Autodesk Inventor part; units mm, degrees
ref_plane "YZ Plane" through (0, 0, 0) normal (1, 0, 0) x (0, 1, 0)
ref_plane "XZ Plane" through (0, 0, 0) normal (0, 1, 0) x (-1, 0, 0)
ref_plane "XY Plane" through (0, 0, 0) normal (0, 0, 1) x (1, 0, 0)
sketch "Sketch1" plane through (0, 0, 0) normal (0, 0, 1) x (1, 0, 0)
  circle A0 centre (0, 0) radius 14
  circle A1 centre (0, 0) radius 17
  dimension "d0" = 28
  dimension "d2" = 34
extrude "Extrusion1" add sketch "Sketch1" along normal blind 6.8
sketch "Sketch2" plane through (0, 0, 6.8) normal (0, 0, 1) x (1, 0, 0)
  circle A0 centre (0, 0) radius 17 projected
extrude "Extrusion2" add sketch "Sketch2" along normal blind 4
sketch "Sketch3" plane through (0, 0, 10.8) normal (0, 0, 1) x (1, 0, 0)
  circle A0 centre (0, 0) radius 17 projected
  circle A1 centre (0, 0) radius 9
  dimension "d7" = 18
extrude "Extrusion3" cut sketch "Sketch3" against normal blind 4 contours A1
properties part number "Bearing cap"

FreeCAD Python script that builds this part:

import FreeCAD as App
import Part
import Sketcher
Q = App.Units.Quantity

doc = App.newDocument("Part")
body = doc.addObject("PartDesign::Body", "Body")

sketch1 = body.newObject("Sketcher::SketchObject", "Sketch")
sketch1.AttachmentSupport = (doc.getObject("XY_Plane"), [""])
sketch1.MapMode = "FlatFace"
sketch1.addGeometry([
    Part.Circle(App.Vector(0, 0, 0), App.Vector(0, 0, 1), 17),
    Part.Circle(App.Vector(0, 0, 0), App.Vector(0, 0, 1), 14),
], False)
sketch1.addConstraint([
    Sketcher.Constraint("Coincident", 0, 3, -1, 1),
    Sketcher.Constraint("Coincident", 1, 3, -1, 1),
    Sketcher.Constraint("Diameter", 0, Q("34 mm")),
    Sketcher.Constraint("Diameter", 1, Q("28 mm")),
])
pad1 = body.newObject("PartDesign::Pad", "Pad")
pad1.Profile = sketch1
pad1.Length = 6.8

sketch2 = body.newObject("Sketcher::SketchObject", "Sketch001")
sketch2.AttachmentSupport = (doc.getObject("XY_Plane"), [""])
sketch2.MapMode = "FlatFace"
sketch2.AttachmentOffset = App.Placement(App.Vector(0, 0, 6.8), App.Rotation())
sketch2.addGeometry(Part.Circle(App.Vector(0, 0, 0), App.Vector(0, 0, 1), 17), False)
sketch2.addConstraint([
    Sketcher.Constraint("Coincident", 0, 3, -1, 1),
    Sketcher.Constraint("Diameter", 0, Q("34 mm")),
])
pad2 = body.newObject("PartDesign::Pad", "Pad001")
pad2.Profile = sketch2
pad2.Length = 4

sketch3 = body.newObject("Sketcher::SketchObject", "Sketch002")
sketch3.AttachmentSupport = (doc.getObject("XY_Plane"), [""])
sketch3.MapMode = "FlatFace"
sketch3.AttachmentOffset = App.Placement(App.Vector(0, 0, 10.8), App.Rotation())
sketch3.addGeometry(Part.Circle(App.Vector(0, 0, 0), App.Vector(0, 0, 1), 9), False)
sketch3.addConstraint([
    Sketcher.Constraint("Coincident", 0, 3, -1, 1),
    Sketcher.Constraint("Diameter", 0, Q("18 mm")),
])
pocket1 = body.newObject("PartDesign::Pocket", "Pocket")
pocket1.Profile = sketch3
pocket1.Length = 4

doc.recompute()
